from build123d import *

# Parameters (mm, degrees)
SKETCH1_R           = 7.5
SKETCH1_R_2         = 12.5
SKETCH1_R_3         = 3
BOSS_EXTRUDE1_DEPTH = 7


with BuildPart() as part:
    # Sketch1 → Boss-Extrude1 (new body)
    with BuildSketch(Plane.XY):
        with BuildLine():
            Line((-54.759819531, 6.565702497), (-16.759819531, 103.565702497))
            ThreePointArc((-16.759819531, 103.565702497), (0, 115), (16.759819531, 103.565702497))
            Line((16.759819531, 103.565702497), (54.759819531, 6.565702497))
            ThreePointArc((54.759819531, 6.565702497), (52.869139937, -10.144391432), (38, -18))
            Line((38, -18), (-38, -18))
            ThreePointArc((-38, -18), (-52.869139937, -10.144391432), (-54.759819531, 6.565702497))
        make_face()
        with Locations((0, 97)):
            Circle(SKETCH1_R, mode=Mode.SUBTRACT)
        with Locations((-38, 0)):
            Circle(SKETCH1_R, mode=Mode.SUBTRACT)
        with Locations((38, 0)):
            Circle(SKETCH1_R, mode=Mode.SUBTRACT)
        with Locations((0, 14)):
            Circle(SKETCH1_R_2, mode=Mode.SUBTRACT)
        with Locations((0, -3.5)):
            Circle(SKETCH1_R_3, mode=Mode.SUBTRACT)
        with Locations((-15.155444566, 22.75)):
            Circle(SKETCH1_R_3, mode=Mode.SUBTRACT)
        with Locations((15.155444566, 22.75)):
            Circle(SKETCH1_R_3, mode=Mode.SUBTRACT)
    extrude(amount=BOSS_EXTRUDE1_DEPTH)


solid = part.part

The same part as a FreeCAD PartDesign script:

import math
import FreeCAD as App
import Part
import Sketcher

V = App.Vector

doc = App.newDocument("Part")
body = doc.addObject("PartDesign::Body", "Body")

sketch1 = body.newObject("Sketcher::SketchObject", "Sketch")
sketch1.AttachmentSupport = (doc.getObject("XY_Plane"), [""])
sketch1.MapMode = "FlatFace"
sketch1.addGeometry([
    Part.LineSegment(V(-16.8, 103.6, 0), V(-54.8, 6.6, 0)),
    Part.ArcOfCircle(Part.Circle(V(-38, 0, 0), V(0, 0, 1), 18), math.radians(159), math.radians(270)),
    Part.LineSegment(V(-38, -18, 0), V(38, -18, 0)),
    Part.ArcOfCircle(Part.Circle(V(38, 0, 0), V(0, 0, 1), 18), math.radians(-90), math.radians(21)),
    Part.LineSegment(V(54.8, 6.6, 0), V(16.8, 103.6, 0)),
    Part.ArcOfCircle(Part.Circle(V(0, 97, 0), V(0, 0, 1), 18), math.radians(21), math.radians(159)),
    Part.Circle(V(38, 0, 0), V(0, 0, 1), 7.5),
    Part.Circle(V(15.2, 22.8, 0), V(0, 0, 1), 3),
    Part.Circle(V(0, -3.5, 0), V(0, 0, 1), 3),
    Part.Circle(V(0, 14, 0), V(0, 0, 1), 12.5),
    Part.Circle(V(-38, 0, 0), V(0, 0, 1), 7.5),
    Part.Circle(V(-15.2, 22.8, 0), V(0, 0, 1), 3),
    Part.Circle(V(0, 97, 0), V(0, 0, 1), 7.5),
], False)
sketch1.addConstraint([
    Sketcher.Constraint("Tangent", 0, 2, 1, 1),
    Sketcher.Constraint("Tangent", 1, 2, 2, 1),
    Sketcher.Constraint("Tangent", 2, 2, 3, 1),
    Sketcher.Constraint("Tangent", 3, 2, 4, 1),
    Sketcher.Constraint("Tangent", 4, 2, 5, 1),
    Sketcher.Constraint("Tangent", 5, 2, 0, 1),
    Sketcher.Constraint("Horizontal", 2),
    Sketcher.Constraint("Coincident", 6, 3, 3, 3),
    Sketcher.Constraint("Coincident", 10, 3, 1, 3),
    Sketcher.Constraint("Coincident", 12, 3, 5, 3),
    Sketcher.Constraint("Equal", 1, 3),
    Sketcher.Constraint("Equal", 3, 5),
    Sketcher.Constraint("Equal", 7, 8),
    Sketcher.Constraint("Equal", 6, 10),
    Sketcher.Constraint("Equal", 8, 11),
    Sketcher.Constraint("Equal", 10, 12),
    Sketcher.Constraint("Symmetric", 1, 3, 3, 3, -1, 1),
    Sketcher.Constraint("Symmetric", 7, 3, 11, 3, -2),
    Sketcher.Constraint("PointOnObject", 5, 3, -2),
    Sketcher.Constraint("PointOnObject", 8, 3, -2),
    Sketcher.Constraint("PointOnObject", 9, 3, -2),
    Sketcher.Constraint("Diameter", 6, 15.0),
    Sketcher.Constraint("Diameter", 7, 6.0),
    Sketcher.Constraint("Diameter", 9, 25.0),
    Sketcher.Constraint("Radius", 1, 18.0),
    Sketcher.Constraint("DistanceX", 2, 1, 2, 2, 76.0),
    Sketcher.Constraint("DistanceY", -1, 1, 5, 3, 97.0),
    Sketcher.Constraint("DistanceY", -1, 1, 9, 3, 14.0),
    Sketcher.Constraint("DistanceY", 8, 3, -1, 1, 3.5),
    Sketcher.Constraint("DistanceY", -1, 1, 7, 3, 22.75),
    Sketcher.Constraint("DistanceX", 11, 3, 7, 3, 30.310889),
])
pad1 = body.newObject("PartDesign::Pad", "Pad")
pad1.Profile = sketch1
pad1.Length = 7

doc.recompute()
